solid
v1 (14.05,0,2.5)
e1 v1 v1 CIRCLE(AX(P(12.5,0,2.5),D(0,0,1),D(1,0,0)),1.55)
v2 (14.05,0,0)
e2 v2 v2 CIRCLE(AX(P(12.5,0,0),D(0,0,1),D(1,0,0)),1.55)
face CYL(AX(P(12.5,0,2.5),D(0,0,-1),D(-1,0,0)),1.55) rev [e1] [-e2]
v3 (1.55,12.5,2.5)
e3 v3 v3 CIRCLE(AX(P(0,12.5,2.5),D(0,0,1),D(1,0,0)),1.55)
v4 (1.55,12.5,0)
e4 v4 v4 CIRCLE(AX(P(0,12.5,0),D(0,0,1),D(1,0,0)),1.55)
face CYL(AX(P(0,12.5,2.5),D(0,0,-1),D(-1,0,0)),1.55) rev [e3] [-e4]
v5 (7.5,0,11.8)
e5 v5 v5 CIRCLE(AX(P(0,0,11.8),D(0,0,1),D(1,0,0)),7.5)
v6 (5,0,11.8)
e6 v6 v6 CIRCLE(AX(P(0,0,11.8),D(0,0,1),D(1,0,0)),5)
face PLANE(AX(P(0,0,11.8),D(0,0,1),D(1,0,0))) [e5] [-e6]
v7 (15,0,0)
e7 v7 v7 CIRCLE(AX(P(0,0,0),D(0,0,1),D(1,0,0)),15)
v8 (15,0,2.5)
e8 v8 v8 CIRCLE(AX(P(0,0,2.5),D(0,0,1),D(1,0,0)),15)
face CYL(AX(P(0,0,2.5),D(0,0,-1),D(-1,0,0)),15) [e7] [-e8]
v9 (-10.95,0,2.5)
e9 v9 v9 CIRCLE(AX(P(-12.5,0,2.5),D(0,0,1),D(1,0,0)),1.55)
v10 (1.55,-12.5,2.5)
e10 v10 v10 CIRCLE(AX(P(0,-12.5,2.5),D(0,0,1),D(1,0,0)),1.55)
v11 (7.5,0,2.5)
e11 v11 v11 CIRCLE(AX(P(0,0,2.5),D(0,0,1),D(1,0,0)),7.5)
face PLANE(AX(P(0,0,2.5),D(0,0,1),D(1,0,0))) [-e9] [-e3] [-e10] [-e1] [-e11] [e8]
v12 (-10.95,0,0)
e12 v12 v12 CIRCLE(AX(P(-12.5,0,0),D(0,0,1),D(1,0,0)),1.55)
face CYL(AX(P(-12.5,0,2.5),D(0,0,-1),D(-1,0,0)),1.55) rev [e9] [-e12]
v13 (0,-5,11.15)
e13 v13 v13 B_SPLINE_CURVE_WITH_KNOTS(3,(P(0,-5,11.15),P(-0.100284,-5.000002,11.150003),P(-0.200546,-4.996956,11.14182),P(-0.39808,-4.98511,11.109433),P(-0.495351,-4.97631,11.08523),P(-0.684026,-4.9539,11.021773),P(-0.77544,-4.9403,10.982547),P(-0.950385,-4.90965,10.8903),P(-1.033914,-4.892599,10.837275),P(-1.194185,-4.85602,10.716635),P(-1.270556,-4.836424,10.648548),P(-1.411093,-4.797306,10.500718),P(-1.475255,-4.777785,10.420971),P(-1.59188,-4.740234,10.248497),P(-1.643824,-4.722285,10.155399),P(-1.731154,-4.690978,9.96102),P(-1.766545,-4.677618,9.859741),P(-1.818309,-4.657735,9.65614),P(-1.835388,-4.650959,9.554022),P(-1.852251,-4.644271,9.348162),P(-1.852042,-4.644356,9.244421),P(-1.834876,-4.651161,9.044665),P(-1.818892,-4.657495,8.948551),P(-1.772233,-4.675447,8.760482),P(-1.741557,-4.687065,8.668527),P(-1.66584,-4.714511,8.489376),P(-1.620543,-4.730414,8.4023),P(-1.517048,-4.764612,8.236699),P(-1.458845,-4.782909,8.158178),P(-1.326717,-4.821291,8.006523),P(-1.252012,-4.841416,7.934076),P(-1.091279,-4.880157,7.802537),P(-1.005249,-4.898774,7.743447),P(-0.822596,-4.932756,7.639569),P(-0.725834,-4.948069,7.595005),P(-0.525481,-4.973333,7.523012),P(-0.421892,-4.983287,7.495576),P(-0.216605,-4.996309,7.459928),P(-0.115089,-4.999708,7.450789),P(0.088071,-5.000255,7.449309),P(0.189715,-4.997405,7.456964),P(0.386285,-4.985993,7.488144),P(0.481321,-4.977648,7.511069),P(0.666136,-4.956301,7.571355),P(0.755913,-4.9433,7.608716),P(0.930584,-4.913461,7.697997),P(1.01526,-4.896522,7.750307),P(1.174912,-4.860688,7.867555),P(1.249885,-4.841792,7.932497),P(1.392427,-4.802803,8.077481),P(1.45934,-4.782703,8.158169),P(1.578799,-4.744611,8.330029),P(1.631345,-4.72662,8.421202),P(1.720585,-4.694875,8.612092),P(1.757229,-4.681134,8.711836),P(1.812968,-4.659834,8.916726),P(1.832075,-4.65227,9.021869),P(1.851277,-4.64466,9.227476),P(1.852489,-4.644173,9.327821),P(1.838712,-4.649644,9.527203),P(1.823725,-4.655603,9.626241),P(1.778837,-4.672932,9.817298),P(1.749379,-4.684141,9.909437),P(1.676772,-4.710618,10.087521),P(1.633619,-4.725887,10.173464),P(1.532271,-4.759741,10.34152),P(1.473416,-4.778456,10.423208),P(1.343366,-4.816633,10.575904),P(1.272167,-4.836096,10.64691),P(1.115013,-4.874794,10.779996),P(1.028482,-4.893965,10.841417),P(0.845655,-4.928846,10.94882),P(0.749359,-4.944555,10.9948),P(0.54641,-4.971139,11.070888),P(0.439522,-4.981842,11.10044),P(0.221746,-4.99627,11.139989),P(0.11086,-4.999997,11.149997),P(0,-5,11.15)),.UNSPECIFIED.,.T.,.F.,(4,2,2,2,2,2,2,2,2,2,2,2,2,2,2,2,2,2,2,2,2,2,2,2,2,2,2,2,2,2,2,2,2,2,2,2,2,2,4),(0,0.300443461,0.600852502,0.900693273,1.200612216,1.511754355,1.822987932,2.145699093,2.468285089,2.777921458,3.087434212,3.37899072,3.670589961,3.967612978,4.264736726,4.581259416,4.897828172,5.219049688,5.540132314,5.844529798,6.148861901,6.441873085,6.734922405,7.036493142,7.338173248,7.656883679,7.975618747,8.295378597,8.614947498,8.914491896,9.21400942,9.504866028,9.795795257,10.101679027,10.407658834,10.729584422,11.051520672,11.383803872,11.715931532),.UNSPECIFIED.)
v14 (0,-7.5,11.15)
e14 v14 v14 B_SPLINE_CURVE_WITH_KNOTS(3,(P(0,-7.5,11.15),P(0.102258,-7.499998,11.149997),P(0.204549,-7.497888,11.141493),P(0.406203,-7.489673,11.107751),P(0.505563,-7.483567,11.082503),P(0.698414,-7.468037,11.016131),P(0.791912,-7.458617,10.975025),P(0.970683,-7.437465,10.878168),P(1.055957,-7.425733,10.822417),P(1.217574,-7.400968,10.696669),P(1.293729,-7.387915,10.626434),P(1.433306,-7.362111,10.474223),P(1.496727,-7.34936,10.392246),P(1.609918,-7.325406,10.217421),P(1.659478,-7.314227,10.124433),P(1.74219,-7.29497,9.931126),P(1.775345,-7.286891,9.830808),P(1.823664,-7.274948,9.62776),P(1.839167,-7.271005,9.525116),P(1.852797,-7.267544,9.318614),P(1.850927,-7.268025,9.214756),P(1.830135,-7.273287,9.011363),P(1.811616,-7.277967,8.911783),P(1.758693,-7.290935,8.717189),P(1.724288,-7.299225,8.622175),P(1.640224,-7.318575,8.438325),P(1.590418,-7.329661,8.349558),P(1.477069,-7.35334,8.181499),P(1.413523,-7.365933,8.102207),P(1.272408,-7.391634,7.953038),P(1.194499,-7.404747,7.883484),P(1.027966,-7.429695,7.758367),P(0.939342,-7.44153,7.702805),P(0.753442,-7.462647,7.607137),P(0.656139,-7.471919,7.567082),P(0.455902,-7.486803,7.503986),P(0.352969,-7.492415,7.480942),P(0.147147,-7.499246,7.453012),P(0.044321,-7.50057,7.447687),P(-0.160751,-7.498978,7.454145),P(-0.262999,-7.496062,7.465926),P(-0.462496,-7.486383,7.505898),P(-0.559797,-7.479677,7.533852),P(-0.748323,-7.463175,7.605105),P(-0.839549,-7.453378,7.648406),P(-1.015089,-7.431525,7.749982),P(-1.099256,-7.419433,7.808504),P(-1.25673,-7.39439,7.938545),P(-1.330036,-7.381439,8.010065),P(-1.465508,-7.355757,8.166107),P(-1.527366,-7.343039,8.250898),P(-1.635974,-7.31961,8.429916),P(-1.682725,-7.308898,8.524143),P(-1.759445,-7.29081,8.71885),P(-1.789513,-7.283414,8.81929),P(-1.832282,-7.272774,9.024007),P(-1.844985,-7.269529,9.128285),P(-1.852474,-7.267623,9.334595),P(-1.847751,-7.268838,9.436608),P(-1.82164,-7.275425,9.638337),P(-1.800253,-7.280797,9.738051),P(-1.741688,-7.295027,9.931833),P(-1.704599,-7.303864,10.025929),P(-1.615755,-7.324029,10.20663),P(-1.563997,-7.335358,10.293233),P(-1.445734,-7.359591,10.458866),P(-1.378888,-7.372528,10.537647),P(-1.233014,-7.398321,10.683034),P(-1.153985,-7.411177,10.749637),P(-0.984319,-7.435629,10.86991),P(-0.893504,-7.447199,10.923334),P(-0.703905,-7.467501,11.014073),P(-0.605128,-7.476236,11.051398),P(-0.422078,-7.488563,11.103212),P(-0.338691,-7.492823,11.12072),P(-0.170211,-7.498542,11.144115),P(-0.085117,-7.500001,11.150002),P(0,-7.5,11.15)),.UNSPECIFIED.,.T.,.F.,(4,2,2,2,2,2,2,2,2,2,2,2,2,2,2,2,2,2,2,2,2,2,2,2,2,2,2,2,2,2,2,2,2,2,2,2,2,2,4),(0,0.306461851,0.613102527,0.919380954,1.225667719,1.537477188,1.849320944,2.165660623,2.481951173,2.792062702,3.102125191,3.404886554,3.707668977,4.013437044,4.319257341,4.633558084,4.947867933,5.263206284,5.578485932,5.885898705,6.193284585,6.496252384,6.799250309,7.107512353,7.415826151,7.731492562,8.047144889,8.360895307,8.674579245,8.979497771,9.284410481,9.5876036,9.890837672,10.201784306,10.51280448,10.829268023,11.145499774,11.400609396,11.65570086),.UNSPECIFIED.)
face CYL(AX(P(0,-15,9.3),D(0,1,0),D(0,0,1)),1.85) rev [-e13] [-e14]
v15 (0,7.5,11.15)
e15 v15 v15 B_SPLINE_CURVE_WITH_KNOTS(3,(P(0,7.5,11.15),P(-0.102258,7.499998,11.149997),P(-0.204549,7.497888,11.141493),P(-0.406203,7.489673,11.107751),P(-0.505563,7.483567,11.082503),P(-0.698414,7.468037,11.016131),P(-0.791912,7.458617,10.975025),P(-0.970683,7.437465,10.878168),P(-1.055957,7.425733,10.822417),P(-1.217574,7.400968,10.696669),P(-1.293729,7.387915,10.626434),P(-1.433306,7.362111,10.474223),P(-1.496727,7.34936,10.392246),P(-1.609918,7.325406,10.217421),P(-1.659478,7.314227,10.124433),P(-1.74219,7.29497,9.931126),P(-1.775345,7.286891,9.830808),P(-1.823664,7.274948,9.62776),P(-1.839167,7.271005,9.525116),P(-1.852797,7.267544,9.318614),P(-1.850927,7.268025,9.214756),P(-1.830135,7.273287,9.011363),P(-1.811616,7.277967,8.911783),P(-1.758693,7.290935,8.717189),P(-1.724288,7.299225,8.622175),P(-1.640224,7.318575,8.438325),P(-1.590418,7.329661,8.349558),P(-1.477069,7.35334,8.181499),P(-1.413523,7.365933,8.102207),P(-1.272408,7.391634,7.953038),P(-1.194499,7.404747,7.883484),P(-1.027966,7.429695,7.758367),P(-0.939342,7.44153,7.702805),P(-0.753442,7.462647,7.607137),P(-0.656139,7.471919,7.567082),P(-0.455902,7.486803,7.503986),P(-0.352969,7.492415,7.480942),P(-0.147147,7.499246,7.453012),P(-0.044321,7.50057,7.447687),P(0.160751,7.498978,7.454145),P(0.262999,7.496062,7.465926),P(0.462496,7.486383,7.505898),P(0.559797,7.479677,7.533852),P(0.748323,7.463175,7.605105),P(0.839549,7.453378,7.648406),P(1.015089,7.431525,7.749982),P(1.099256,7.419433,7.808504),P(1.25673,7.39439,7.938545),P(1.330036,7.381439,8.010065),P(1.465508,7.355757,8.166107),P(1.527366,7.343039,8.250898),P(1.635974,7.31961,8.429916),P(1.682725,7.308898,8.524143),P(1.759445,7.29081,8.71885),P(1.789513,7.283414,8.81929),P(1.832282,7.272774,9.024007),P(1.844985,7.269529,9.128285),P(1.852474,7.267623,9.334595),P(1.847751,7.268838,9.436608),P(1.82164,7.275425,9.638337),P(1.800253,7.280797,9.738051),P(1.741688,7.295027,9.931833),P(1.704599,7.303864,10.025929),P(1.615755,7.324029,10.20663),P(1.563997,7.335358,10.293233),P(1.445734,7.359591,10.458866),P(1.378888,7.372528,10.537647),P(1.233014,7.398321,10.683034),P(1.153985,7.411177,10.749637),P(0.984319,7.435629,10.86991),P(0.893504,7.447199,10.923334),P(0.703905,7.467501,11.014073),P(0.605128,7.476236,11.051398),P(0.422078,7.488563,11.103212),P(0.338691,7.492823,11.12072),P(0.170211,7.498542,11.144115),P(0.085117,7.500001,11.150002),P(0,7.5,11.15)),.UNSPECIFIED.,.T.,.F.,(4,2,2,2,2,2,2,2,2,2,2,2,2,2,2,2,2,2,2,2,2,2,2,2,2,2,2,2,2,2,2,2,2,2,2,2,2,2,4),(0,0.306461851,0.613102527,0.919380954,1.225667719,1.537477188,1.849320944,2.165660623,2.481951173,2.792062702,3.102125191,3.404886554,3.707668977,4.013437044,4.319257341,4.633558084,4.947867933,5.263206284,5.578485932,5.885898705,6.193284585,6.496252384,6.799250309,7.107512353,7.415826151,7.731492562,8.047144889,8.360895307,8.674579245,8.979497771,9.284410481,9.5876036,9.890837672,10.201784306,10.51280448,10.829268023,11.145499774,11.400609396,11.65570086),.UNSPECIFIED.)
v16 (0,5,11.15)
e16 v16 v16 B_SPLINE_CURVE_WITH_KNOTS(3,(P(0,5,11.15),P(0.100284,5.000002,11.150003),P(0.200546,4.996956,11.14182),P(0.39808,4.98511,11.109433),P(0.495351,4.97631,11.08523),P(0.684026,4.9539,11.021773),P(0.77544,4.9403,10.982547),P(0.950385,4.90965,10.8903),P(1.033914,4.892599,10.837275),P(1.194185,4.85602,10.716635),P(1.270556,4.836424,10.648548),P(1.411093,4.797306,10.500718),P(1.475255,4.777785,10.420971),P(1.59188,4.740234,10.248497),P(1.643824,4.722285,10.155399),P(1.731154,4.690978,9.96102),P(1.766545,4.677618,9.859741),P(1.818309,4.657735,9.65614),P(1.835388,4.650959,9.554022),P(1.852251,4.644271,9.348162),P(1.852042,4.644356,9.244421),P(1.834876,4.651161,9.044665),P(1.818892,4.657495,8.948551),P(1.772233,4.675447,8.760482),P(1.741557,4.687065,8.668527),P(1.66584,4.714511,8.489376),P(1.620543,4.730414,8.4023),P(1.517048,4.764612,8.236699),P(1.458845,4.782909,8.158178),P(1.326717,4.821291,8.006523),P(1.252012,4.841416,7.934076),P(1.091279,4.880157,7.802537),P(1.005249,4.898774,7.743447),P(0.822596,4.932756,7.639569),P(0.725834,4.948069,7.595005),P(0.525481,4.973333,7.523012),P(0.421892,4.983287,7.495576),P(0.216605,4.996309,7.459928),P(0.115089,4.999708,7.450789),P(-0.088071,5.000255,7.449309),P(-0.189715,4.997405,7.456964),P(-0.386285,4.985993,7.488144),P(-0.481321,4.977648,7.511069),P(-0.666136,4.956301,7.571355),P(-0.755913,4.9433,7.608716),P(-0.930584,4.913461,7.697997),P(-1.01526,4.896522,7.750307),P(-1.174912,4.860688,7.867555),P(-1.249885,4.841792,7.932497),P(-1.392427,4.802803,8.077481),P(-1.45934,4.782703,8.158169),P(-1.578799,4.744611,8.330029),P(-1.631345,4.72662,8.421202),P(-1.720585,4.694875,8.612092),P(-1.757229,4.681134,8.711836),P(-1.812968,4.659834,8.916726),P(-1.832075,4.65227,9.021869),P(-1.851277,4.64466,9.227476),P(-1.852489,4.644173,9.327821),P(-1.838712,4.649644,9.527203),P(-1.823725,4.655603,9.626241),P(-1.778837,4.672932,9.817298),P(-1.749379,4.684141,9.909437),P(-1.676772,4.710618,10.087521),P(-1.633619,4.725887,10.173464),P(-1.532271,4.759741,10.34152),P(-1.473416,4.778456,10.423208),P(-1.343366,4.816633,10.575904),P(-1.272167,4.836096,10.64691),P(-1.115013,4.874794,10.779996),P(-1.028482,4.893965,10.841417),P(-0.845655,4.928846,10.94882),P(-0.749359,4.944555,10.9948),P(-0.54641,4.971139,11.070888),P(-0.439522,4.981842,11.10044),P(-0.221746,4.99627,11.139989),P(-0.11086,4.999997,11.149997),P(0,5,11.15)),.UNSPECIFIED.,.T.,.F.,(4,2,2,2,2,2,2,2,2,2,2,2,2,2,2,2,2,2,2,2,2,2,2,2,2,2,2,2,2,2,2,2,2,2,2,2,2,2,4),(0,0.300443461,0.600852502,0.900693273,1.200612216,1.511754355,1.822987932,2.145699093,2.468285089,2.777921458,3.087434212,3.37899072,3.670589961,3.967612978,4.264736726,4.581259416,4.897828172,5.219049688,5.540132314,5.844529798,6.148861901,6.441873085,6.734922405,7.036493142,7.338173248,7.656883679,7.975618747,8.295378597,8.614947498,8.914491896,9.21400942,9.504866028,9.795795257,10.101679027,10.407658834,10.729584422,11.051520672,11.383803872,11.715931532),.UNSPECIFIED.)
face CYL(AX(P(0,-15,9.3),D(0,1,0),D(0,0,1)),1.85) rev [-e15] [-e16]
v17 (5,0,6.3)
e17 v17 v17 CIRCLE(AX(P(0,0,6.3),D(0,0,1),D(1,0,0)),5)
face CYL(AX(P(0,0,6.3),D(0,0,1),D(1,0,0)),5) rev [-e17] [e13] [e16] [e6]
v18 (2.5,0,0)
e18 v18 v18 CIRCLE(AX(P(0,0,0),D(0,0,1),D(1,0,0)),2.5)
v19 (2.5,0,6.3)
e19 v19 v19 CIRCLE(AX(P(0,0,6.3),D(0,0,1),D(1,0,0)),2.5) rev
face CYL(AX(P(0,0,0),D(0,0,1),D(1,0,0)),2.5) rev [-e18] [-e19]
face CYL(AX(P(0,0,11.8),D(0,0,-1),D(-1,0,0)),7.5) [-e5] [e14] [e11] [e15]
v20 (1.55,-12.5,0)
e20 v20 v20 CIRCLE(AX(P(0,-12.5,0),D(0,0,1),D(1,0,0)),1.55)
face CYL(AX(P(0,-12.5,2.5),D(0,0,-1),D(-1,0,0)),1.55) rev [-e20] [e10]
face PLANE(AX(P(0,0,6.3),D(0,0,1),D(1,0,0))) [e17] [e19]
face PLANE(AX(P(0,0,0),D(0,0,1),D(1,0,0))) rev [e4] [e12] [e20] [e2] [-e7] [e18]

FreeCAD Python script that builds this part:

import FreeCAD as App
import Part
import Sketcher
from FreeCAD import Vector

doc = App.newDocument("Part")
body = doc.addObject("PartDesign::Body", "Body")

# Sketch on XY plane
sketch1 = body.newObject("Sketcher::SketchObject", "Sketch")
sketch1.AttachmentSupport = (doc.getObject("XY_Plane"), [""])
sketch1.MapMode = "FlatFace"
sketch1.addGeometry([
    Part.Circle(Vector(0, 0, 0), Vector(0, 0, 1), 15),  # 0
    Part.Circle(Vector(0, -12.5, 0), Vector(0, 0, 1), 1.6),  # 1
    Part.Circle(Vector(-12.5, 0, 0), Vector(0, 0, 1), 1.6),  # 2
    Part.Circle(Vector(12.5, 0, 0), Vector(0, 0, 1), 1.6),  # 3
    Part.Circle(Vector(0, 12.5, 0), Vector(0, 0, 1), 1.6),  # 4
], False)
sketch1.addConstraint([
    Sketcher.Constraint("Coincident", 0, 3, -1, 1),
    Sketcher.Constraint("Equal", 1, 2),
    Sketcher.Constraint("Equal", 2, 3),
    Sketcher.Constraint("Equal", 3, 4),
    Sketcher.Constraint("Symmetric", 2, 3, 3, 3, -1, 1),
    Sketcher.Constraint("Symmetric", 1, 3, 4, 3, -1, 1),
    Sketcher.Constraint("PointOnObject", 1, 3, -2),
    Sketcher.Constraint("PointOnObject", 2, 3, -1),
    Sketcher.Constraint("Diameter", 0, 30.0),
    Sketcher.Constraint("Diameter", 1, 3.1),
    Sketcher.Constraint("DistanceX", 2, 3, 3, 3, 25.0),
    Sketcher.Constraint("DistanceY", 1, 3, 4, 3, 25.0),
])
pad1 = body.newObject("PartDesign::Pad", "Pad")
pad1.Profile = sketch1
pad1.Length = 2.5

# Sketch on XY plane
sketch2 = body.newObject("Sketcher::SketchObject", "Sketch001")
sketch2.AttachmentSupport = (doc.getObject("XY_Plane"), [""])
sketch2.MapMode = "FlatFace"
sketch2.AttachmentOffset = App.Placement(Vector(0, 0, 2.5), App.Rotation())
sketch2.addGeometry(Part.Circle(Vector(0, 0, 0), Vector(0, 0, 1), 8), False)
sketch2.addConstraint([
    Sketcher.Constraint("Coincident", 0, 3, -1, 1),
    Sketcher.Constraint("Diameter", 0, 15.0),
])
pad2 = body.newObject("PartDesign::Pad", "Pad001")
pad2.Profile = sketch2
pad2.Length = 9.3

# Sketch on XY plane
sketch3 = body.newObject("Sketcher::SketchObject", "Sketch002")
sketch3.AttachmentSupport = (doc.getObject("XY_Plane"), [""])
sketch3.MapMode = "FlatFace"
sketch3.AttachmentOffset = App.Placement(Vector(0, 0, 11.8), App.Rotation())
sketch3.addGeometry(Part.Circle(Vector(0, 0, 0), Vector(0, 0, 1), 2.5), False)
sketch3.addConstraint([
    Sketcher.Constraint("Coincident", 0, 3, -1, 1),
    Sketcher.Constraint("Diameter", 0, 5.0),
])
pocket1 = body.newObject("PartDesign::Pocket", "Pocket")
pocket1.Profile = sketch3
pocket1.Type = "ThroughAll"
pocket1.Midplane = True

# Sketch on XY plane
sketch4 = body.newObject("Sketcher::SketchObject", "Sketch003")
sketch4.AttachmentSupport = (doc.getObject("XY_Plane"), [""])
sketch4.MapMode = "FlatFace"
sketch4.AttachmentOffset = App.Placement(Vector(0, 0, 11.8), App.Rotation())
sketch4.addGeometry(Part.Circle(Vector(0, 0, 0), Vector(0, 0, 1), 5), False)
sketch4.addConstraint([
    Sketcher.Constraint("Coincident", 0, 3, -1, 1),
    Sketcher.Constraint("Diameter", 0, 10.0),
])
pocket2 = body.newObject("PartDesign::Pocket", "Pocket001")
pocket2.Profile = sketch4
pocket2.Length = 5.5

# Sketch on XZ plane
sketch5 = body.newObject("Sketcher::SketchObject", "Sketch004")
sketch5.AttachmentSupport = (doc.getObject("XZ_Plane"), [""])
sketch5.MapMode = "FlatFace"
sketch5.addGeometry(Part.Circle(Vector(0, 9.3, 0), Vector(0, 0, 1), 1.9), False)
sketch5.addConstraint([
    Sketcher.Constraint("PointOnObject", 0, 3, -2),
    Sketcher.Constraint("Diameter", 0, 3.7),
    Sketcher.Constraint("DistanceY", -1, 1, 0, 3, 9.3),
])
pocket3 = body.newObject("PartDesign::Pocket", "Pocket002")
pocket3.Profile = sketch5
pocket3.Type = "ThroughAll"
pocket3.Midplane = True

doc.recompute()
